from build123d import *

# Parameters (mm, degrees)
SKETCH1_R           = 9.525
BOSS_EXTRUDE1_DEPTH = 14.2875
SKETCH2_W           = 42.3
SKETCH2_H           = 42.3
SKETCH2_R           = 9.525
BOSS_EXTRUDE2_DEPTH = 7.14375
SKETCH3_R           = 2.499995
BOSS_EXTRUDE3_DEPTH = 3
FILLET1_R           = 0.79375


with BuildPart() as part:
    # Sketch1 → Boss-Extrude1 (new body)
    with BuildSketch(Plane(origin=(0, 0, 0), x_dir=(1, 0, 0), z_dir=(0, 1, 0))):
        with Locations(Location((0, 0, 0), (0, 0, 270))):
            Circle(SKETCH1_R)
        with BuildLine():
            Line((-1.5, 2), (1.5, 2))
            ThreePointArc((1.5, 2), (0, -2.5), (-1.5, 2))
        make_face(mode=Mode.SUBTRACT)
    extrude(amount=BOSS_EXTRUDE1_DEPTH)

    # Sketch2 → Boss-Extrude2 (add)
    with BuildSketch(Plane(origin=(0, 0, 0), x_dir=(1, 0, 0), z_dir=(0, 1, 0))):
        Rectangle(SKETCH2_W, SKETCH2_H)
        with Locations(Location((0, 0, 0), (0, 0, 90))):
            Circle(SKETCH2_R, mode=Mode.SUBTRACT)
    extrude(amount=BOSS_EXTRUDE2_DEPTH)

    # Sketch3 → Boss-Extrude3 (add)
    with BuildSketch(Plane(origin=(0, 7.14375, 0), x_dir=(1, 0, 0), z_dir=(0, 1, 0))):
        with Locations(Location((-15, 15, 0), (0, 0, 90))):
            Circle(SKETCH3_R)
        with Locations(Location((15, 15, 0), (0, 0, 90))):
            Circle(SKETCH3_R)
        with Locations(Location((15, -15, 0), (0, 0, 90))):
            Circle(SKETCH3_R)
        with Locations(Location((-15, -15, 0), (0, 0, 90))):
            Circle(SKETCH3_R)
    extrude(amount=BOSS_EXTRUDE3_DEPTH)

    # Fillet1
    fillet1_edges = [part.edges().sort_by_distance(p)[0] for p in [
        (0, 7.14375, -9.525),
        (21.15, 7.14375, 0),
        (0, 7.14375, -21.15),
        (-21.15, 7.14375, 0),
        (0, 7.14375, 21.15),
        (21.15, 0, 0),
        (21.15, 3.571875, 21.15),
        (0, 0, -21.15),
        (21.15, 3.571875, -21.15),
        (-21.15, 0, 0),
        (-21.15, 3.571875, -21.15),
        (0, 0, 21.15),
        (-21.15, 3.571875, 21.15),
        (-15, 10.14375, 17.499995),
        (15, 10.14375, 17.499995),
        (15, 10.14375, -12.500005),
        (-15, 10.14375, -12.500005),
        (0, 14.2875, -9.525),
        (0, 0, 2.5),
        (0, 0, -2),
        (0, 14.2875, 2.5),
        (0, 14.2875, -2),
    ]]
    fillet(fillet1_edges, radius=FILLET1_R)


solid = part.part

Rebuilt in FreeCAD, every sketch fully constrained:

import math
import FreeCAD as App
import Part
import Sketcher
Q = App.Units.Quantity


def edges_at(feature, points):
    """Names of the edges that pass closest to the given points."""
    edges = feature.Shape.Edges
    near = lambda p: min(range(len(edges)), key=lambda i: edges[i].distToShape(Part.Vertex(*p))[0])
    return sorted({f"Edge{near(p) + 1}" for p in points})

doc = App.newDocument("Part")
body = doc.addObject("PartDesign::Body", "Body")

sketch1 = body.newObject("Sketcher::SketchObject", "Sketch")
sketch1.AttachmentSupport = (doc.getObject("XZ_Plane"), [""])
sketch1.MapMode = "FlatFace"
sketch1.addGeometry([
    Part.Circle(App.Vector(0, 0, 0), App.Vector(0, 0, 1), 9.5),
    Part.ArcOfCircle(Part.Circle(App.Vector(0, 0, 0), App.Vector(0, 0, 1), 2.5), math.radians(-53), math.radians(233)),
    Part.LineSegment(App.Vector(-1.5, -2, 0), App.Vector(1.5, -2, 0)),
], False)
sketch1.addConstraint([
    Sketcher.Constraint("Coincident", 1, 1, 2, 2),
    Sketcher.Constraint("Coincident", 2, 1, 1, 2),
    Sketcher.Constraint("Horizontal", 2),
    Sketcher.Constraint("Coincident", 0, 3, -1, 1),
    Sketcher.Constraint("Coincident", 1, 3, -1, 1),
    Sketcher.Constraint("Diameter", 0, Q("0.75 in")),
    Sketcher.Constraint("Radius", 1, 2.5),
    Sketcher.Constraint("DistanceX", 2, 1, 2, 2, 3.0),
])
pad1 = body.newObject("PartDesign::Pad", "Pad")
pad1.Profile = sketch1
pad1.Length = Q("0.5625 in")
pad1.Reversed = True

sketch2 = body.newObject("Sketcher::SketchObject", "Sketch001")
sketch2.AttachmentSupport = (doc.getObject("XZ_Plane"), [""])
sketch2.MapMode = "FlatFace"
sketch2.addGeometry([
    Part.LineSegment(App.Vector(-21, -21, 0), App.Vector(-21, 21, 0)),
    Part.LineSegment(App.Vector(-21, 21, 0), App.Vector(21, 21, 0)),
    Part.LineSegment(App.Vector(21, 21, 0), App.Vector(21, -21, 0)),
    Part.LineSegment(App.Vector(21, -21, 0), App.Vector(-21, -21, 0)),
    Part.Circle(App.Vector(0, 0, 0), App.Vector(0, 0, 1), 10),
], False)
sketch2.addConstraint([
    Sketcher.Constraint("Coincident", 0, 2, 1, 1),
    Sketcher.Constraint("Coincident", 1, 2, 2, 1),
    Sketcher.Constraint("Coincident", 2, 2, 3, 1),
    Sketcher.Constraint("Coincident", 3, 2, 0, 1),
    Sketcher.Constraint("Vertical", 0),
    Sketcher.Constraint("Horizontal", 1),
    Sketcher.Constraint("Vertical", 2),
    Sketcher.Constraint("Horizontal", 3),
    Sketcher.Constraint("Coincident", 4, 3, -1, 1),
    Sketcher.Constraint("Symmetric", 0, 2, 2, 2, -1, 1),
    Sketcher.Constraint("Equal", 3, 0),
    Sketcher.Constraint("Diameter", 4, Q("0.75 in")),
    Sketcher.Constraint("DistanceX", 1, 1, 1, 2, 42.3),
])
pad2 = body.newObject("PartDesign::Pad", "Pad001")
pad2.Profile = sketch2
pad2.Length = Q("0.28125 in")
pad2.Reversed = True

sketch3 = body.newObject("Sketcher::SketchObject", "Sketch002")
sketch3.AttachmentSupport = (doc.getObject("XZ_Plane"), [""])
sketch3.MapMode = "FlatFace"
sketch3.AttachmentOffset = App.Placement(App.Vector(0, 0, -0.28125 * 25.4), App.Rotation())
sketch3.addGeometry([
    Part.Circle(App.Vector(-15, -15, 0), App.Vector(0, 0, 1), 2.5),
    Part.Circle(App.Vector(15, -15, 0), App.Vector(0, 0, 1), 2.5),
    Part.Circle(App.Vector(15, 15, 0), App.Vector(0, 0, 1), 2.5),
    Part.Circle(App.Vector(-15, 15, 0), App.Vector(0, 0, 1), 2.5),
], False)
sketch3.addConstraint([
    Sketcher.Constraint("Equal", 0, 1),
    Sketcher.Constraint("Equal", 1, 2),
    Sketcher.Constraint("Equal", 2, 3),
    Sketcher.Constraint("Symmetric", 0, 3, 2, 3, -1, 1),
    Sketcher.Constraint("Symmetric", 1, 3, 3, 3, -1, 1),
    Sketcher.Constraint("Symmetric", 0, 3, 1, 3, -2),
    Sketcher.Constraint("Diameter", 0, 4.99999),
    Sketcher.Constraint("DistanceX", 0, 3, -1, 1, 15.0),
    Sketcher.Constraint("DistanceY", 0, 3, -1, 1, 15.0),
])
pad3 = body.newObject("PartDesign::Pad", "Pad002")
pad3.Profile = sketch3
pad3.Length = 3
pad3.Reversed = True
doc.recompute()

fillet = body.newObject("PartDesign::Fillet", "Fillet")
fillet.Base = (pad3, edges_at(pad3, [
    (0, 7.144, -9.525),
    (21.15, 7.144, 0),
    (0, 7.144, -21.15),
    (-21.15, 7.144, 0),
    (0, 7.144, 21.15),
    (21.15, 0, 0),
    (21.15, 3.572, 21.15),
    (0, 0, -21.15),
    (21.15, 3.572, -21.15),
    (-21.15, 0, 0),
    (-21.15, 3.572, -21.15),
    (0, 0, 21.15),
    (-21.15, 3.572, 21.15),
    (-15, 10.144, 17.5),
    (15, 10.144, 17.5),
    (15, 10.144, -12.5),
    (-15, 10.144, -12.5),
    (0, 14.287, -9.525),
    (0, 0, 2.5),
    (0, 0, -2),
    (0, 14.287, 2.5),
    (0, 14.287, -2),
]))
fillet.Radius = Q("0.03125 in")

doc.recompute()
